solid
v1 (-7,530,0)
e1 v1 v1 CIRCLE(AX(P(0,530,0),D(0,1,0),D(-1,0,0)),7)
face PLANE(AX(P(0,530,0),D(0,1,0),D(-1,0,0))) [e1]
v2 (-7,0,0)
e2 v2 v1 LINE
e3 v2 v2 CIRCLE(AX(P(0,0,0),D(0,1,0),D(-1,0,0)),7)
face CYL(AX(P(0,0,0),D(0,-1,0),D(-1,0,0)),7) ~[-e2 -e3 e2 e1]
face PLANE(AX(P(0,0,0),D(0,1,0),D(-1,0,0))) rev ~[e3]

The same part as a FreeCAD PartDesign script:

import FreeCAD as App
import Part
import Sketcher
Q = App.Units.Quantity

doc = App.newDocument("Part")
body = doc.addObject("PartDesign::Body", "Body")

# Sketch on XZ plane
sketch1 = doc.addObject("Sketcher::SketchObject", "Sketch")
body.addObject(sketch1)
sketch1.AttachmentSupport = (doc.XZ_Plane, [""])
sketch1.MapMode = "FlatFace"
sketch1.addGeometry(Part.Circle(App.Vector(0, 0, 0), App.Vector(0, 0, 1), 7), False)
sketch1.addConstraint([
    Sketcher.Constraint("Coincident", 0, 3, -1, 1),
    Sketcher.Constraint("Diameter", 0, Q("14 mm")),
])
pad1 = doc.addObject("PartDesign::Pad", "Pad")
body.addObject(pad1)
pad1.Profile = sketch1
pad1.Length = 530
pad1.Reversed = True

doc.recompute()
